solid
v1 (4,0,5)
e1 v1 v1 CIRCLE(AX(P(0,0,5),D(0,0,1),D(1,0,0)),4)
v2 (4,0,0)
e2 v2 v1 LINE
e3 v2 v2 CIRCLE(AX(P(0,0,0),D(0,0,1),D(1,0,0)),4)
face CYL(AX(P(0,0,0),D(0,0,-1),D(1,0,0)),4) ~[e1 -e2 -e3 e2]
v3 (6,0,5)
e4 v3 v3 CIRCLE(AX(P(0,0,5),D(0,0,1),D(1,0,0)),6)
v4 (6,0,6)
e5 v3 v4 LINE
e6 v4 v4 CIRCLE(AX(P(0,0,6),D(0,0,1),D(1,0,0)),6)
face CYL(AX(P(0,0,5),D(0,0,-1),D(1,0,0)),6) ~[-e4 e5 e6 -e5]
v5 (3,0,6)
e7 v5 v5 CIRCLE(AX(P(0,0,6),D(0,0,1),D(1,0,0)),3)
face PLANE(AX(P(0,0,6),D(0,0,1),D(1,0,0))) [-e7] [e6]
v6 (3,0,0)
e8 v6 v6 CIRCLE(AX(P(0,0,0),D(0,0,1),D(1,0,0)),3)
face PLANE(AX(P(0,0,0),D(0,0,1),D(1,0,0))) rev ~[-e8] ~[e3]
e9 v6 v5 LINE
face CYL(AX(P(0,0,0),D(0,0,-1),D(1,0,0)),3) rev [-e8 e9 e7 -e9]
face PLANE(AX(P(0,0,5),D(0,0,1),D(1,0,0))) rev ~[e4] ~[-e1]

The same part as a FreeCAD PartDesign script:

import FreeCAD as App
import Part
import Sketcher
from FreeCAD import Vector

doc = App.newDocument("Part")
body = doc.addObject("PartDesign::Body", "Body")

# Sketch on XY plane
sketch1 = body.newObject("Sketcher::SketchObject", "Sketch")
sketch1.AttachmentSupport = (doc.getObject("XY_Plane"), [""])
sketch1.MapMode = "FlatFace"
sketch1.addGeometry([
    Part.Circle(Vector(0, 0, 0), Vector(0, 0, 1), 4),
    Part.Circle(Vector(0, 0, 0), Vector(0, 0, 1), 3),
], False)
sketch1.addConstraint([
    Sketcher.Constraint("Coincident", 0, 3, -1, 1),
    Sketcher.Constraint("Coincident", 1, 3, -1, 1),
    Sketcher.Constraint("Diameter", 0, 8.0),
    Sketcher.Constraint("Diameter", 1, 6.0),
])
pad1 = body.newObject("PartDesign::Pad", "Pad")
pad1.Profile = sketch1
pad1.Length = 5

# Sketch on XY plane
sketch2 = body.newObject("Sketcher::SketchObject", "Sketch001")
sketch2.AttachmentSupport = (doc.getObject("XY_Plane"), [""])
sketch2.MapMode = "FlatFace"
sketch2.AttachmentOffset = App.Placement(Vector(0, 0, 5), App.Rotation())
sketch2.addGeometry([
    Part.Circle(Vector(0, 0, 0), Vector(0, 0, 1), 6),
    Part.Circle(Vector(0, 0, 0), Vector(0, 0, 1), 3),
], False)
sketch2.addConstraint([
    Sketcher.Constraint("Coincident", 0, 3, -1, 1),
    Sketcher.Constraint("Coincident", 1, 3, -1, 1),
    Sketcher.Constraint("Diameter", 0, 12.0),
    Sketcher.Constraint("Diameter", 1, 6.0),
])
pad2 = body.newObject("PartDesign::Pad", "Pad001")
pad2.Profile = sketch2
pad2.Length = 1

doc.recompute()
